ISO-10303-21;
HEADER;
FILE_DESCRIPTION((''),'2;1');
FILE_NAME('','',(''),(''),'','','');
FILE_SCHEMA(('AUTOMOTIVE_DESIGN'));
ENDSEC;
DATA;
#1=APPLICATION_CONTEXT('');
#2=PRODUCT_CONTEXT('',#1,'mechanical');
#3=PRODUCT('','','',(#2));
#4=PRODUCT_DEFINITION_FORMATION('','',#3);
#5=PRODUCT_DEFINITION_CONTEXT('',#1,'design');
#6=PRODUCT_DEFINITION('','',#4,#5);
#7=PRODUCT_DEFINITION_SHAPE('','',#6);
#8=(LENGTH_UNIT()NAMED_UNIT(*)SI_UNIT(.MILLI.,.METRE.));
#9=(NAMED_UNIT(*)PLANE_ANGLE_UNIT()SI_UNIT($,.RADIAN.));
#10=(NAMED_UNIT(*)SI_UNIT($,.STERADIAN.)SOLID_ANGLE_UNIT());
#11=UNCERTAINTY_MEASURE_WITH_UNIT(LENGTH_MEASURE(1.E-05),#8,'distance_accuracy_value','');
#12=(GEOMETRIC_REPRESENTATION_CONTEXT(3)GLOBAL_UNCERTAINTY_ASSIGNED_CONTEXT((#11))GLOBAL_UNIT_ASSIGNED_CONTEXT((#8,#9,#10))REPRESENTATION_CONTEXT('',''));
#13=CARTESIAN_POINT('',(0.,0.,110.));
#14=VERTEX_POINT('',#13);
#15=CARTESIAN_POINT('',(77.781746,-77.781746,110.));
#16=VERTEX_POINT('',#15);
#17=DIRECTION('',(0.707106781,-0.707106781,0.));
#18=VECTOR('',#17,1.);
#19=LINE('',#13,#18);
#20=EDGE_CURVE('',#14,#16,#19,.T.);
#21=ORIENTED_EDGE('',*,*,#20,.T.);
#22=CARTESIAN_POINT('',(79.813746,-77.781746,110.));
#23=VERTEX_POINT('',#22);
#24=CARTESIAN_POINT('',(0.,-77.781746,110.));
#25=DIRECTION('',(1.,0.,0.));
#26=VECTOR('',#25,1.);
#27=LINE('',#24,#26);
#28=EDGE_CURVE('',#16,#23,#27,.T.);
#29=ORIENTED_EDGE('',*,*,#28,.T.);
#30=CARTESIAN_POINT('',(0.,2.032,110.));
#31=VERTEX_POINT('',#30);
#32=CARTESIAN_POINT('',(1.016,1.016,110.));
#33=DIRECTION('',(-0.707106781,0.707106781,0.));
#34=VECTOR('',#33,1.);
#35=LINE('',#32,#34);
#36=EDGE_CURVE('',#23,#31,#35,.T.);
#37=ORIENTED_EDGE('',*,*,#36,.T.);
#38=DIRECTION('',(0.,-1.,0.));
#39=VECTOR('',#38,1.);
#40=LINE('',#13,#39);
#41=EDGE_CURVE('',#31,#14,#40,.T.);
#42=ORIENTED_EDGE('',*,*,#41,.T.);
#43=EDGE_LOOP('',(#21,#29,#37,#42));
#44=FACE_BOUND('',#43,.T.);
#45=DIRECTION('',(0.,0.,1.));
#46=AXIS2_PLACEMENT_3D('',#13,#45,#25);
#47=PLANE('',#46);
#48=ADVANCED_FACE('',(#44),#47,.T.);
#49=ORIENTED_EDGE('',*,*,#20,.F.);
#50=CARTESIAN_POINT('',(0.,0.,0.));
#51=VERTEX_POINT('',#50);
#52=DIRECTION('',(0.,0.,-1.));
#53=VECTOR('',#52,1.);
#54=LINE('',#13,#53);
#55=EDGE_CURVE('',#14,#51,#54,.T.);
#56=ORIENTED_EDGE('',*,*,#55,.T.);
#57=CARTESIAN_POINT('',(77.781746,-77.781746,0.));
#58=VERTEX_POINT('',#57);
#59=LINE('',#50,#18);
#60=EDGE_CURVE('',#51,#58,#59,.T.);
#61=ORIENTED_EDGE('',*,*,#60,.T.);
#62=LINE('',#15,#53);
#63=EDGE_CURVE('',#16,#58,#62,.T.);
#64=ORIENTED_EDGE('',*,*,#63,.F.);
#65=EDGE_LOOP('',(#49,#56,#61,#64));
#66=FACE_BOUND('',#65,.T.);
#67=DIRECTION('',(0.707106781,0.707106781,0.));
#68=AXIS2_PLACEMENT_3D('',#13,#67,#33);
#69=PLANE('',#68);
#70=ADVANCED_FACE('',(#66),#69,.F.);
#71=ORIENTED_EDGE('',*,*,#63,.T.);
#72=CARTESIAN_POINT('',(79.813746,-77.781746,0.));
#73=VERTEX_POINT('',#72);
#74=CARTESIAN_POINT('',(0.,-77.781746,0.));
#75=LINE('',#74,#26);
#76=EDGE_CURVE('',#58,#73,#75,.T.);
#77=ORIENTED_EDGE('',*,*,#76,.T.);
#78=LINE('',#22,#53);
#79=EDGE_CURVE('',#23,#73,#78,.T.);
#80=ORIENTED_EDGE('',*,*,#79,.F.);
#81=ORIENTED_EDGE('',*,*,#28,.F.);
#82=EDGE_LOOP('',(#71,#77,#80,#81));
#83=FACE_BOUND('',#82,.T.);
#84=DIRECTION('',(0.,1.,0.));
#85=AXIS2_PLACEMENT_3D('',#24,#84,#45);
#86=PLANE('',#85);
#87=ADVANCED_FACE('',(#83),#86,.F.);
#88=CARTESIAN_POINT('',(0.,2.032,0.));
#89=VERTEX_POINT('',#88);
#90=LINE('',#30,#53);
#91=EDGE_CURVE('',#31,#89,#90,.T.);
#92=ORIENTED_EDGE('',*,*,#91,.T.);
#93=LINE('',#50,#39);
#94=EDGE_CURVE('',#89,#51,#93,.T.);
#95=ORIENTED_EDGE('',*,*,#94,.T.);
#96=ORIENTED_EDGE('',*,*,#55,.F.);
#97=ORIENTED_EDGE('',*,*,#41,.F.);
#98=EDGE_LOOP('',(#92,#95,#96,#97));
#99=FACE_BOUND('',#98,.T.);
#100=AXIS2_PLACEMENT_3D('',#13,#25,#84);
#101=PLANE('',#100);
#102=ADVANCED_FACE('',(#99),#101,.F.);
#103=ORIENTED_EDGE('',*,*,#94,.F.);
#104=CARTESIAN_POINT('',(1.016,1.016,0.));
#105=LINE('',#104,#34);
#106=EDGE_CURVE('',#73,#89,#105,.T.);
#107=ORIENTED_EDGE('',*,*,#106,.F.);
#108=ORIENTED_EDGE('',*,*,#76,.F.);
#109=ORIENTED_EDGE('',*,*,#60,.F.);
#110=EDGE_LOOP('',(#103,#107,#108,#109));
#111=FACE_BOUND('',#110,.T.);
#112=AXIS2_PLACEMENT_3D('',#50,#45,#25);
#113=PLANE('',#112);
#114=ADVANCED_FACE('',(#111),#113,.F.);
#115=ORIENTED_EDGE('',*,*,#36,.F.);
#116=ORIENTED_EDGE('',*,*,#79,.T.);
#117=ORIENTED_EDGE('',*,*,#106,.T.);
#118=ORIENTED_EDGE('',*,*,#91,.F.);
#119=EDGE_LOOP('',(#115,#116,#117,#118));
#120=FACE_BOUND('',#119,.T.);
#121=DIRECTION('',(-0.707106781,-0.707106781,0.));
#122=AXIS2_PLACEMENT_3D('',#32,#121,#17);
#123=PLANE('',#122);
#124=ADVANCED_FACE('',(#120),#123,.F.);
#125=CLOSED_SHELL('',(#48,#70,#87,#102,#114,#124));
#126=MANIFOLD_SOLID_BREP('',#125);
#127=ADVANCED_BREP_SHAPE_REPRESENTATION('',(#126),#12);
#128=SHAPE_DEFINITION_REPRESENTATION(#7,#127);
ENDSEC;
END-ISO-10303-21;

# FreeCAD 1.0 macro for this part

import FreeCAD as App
import Part
import Sketcher

V = App.Vector


def add_polygon(sketch, points):
    """Adds a closed chain of lines whose ends are joined by coincident constraints."""
    first, n = sketch.GeometryCount, len(points)
    for a, b in zip(points, points[1:] + points[:1]):
        sketch.addGeometry(Part.LineSegment(App.Vector(*a, 0), App.Vector(*b, 0)), False)
    for i in range(n):
        sketch.addConstraint(Sketcher.Constraint("Coincident", first + i, 2, first + (i + 1) % n, 1))

doc = App.newDocument("Part")
body = doc.addObject("PartDesign::Body", "Body")

sketch1 = doc.addObject("Sketcher::SketchObject", "Sketch")
body.addObject(sketch1)
sketch1.AttachmentSupport = (doc.XY_Plane, [""])
sketch1.MapMode = "FlatFace"
add_polygon(sketch1, [(79.8, -77.8), (0, 2), (0, 0), (77.8, -77.8)])
sketch1.addConstraint([
    Sketcher.Constraint("Vertical", 1),
    Sketcher.Constraint("Horizontal", 3),
    Sketcher.Constraint("Coincident", 1, 2, -1, 1),
    Sketcher.Constraint("Parallel", 0, 2),
    Sketcher.Constraint("Equal", 3, 1),
    Sketcher.Constraint("Distance", 2, 110.0),
    Sketcher.Constraint("DistanceX", 3, 1, 3, 2, 2.032),
])
pad1 = doc.addObject("PartDesign::Pad", "Pad")
body.addObject(pad1)
pad1.Profile = sketch1
pad1.Length = 110

doc.recompute()
